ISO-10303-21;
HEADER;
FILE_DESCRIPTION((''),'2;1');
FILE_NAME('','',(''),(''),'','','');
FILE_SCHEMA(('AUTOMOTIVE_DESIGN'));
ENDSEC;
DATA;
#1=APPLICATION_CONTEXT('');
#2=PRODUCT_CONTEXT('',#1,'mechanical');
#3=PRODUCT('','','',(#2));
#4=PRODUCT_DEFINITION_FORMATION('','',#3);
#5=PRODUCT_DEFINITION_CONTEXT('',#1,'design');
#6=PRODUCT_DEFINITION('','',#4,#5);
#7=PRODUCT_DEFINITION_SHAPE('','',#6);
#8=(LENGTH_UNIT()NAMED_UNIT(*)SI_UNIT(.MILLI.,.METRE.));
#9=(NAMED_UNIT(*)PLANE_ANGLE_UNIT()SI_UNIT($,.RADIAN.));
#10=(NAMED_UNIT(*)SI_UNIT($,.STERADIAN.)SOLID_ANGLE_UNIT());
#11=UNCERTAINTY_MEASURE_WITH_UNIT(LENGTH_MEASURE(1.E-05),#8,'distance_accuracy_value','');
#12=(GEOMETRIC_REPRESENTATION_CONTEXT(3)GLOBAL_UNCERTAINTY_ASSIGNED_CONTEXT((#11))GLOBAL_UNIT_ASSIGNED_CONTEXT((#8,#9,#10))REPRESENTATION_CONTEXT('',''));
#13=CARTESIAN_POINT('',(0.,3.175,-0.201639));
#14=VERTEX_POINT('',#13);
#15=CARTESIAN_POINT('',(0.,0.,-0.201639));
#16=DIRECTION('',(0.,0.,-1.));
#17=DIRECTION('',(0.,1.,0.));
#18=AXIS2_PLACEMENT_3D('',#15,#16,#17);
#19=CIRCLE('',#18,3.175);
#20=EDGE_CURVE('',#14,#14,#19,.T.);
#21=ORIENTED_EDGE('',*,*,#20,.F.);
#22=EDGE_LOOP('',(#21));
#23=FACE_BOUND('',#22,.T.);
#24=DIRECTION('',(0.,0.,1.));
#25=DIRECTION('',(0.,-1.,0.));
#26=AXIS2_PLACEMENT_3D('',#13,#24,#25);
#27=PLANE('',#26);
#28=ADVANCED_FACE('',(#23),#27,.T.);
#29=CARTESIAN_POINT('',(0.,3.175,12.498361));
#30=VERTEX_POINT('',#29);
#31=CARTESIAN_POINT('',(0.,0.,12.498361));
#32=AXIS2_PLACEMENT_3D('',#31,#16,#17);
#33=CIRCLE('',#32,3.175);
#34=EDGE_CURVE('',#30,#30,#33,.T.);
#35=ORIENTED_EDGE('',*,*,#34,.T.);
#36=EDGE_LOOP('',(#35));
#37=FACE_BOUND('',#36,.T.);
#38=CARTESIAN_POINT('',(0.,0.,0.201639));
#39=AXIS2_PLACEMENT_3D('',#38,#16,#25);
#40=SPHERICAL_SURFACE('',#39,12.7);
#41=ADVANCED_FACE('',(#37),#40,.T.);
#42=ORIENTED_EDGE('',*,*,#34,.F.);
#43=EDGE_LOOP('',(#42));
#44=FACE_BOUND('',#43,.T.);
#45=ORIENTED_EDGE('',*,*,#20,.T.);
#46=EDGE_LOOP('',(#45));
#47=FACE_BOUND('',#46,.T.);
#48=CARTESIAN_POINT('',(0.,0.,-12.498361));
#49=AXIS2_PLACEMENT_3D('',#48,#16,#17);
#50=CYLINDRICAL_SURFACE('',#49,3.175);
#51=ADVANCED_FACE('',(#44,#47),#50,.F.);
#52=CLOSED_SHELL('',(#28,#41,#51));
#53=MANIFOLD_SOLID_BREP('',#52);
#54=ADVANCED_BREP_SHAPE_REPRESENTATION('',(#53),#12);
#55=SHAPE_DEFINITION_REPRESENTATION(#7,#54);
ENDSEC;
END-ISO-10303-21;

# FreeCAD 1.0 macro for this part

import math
import FreeCAD as App
import Part
import Sketcher
Q = App.Units.Quantity

doc = App.newDocument("Part")
body = doc.addObject("PartDesign::Body", "Body")

# Sketch on YZ plane
sketch1 = body.newObject("Sketcher::SketchObject", "Sketch")
sketch1.AttachmentSupport = (doc.getObject("YZ_Plane"), [""])
sketch1.MapMode = "FlatFace"
sketch1.addGeometry(Part.LineSegment(App.Vector(0, -0.2, 0), App.Vector(0, -12.5, 0)), False)
sketch1.addGeometry(Part.ArcOfCircle(Part.Circle(App.Vector(0, 0.2, 0), App.Vector(0, 0, 1), 12.7), math.radians(-90), math.radians(76)), False)
sketch1.addGeometry(Part.LineSegment(App.Vector(3.2, 12.5, 0), App.Vector(3.2, -0.2, 0)), False)
sketch1.addGeometry(Part.LineSegment(App.Vector(3.2, -0.2, 0), App.Vector(0, -0.2, 0)), False)
sketch1.addConstraint(Sketcher.Constraint("Coincident", 0, 2, 1, 1))
sketch1.addConstraint(Sketcher.Constraint("Coincident", 1, 2, 2, 1))
sketch1.addConstraint(Sketcher.Constraint("Coincident", 2, 2, 3, 1))
sketch1.addConstraint(Sketcher.Constraint("Coincident", 3, 2, 0, 1))
sketch1.addConstraint(Sketcher.Constraint("Vertical", 0))
sketch1.addConstraint(Sketcher.Constraint("Vertical", 2))
sketch1.addConstraint(Sketcher.Constraint("Horizontal", 3))
sketch1.addConstraint(Sketcher.Constraint("PointOnObject", 1, 3, -2))
sketch1.addConstraint(Sketcher.Constraint("PointOnObject", 0, 2, -2))
sketch1.addConstraint(Sketcher.Constraint("Radius", 1, Q("0.5 in")))
sketch1.addConstraint(Sketcher.Constraint("DistanceY", 2, 2, 2, 1, Q("0.5 in")))
sketch1.addConstraint(Sketcher.Constraint("DistanceX", 3, 2, 3, 1, Q("0.125 in")))
sketch1.addConstraint(Sketcher.Constraint("DistanceY", -1, 1, 1, 3, 0.201639))
revolution = body.newObject("PartDesign::Revolution", "Revolution")
revolution.Profile = sketch1
revolution.ReferenceAxis = (sketch1, ["V_Axis"])
revolution.Angle = 360

doc.recompute()
